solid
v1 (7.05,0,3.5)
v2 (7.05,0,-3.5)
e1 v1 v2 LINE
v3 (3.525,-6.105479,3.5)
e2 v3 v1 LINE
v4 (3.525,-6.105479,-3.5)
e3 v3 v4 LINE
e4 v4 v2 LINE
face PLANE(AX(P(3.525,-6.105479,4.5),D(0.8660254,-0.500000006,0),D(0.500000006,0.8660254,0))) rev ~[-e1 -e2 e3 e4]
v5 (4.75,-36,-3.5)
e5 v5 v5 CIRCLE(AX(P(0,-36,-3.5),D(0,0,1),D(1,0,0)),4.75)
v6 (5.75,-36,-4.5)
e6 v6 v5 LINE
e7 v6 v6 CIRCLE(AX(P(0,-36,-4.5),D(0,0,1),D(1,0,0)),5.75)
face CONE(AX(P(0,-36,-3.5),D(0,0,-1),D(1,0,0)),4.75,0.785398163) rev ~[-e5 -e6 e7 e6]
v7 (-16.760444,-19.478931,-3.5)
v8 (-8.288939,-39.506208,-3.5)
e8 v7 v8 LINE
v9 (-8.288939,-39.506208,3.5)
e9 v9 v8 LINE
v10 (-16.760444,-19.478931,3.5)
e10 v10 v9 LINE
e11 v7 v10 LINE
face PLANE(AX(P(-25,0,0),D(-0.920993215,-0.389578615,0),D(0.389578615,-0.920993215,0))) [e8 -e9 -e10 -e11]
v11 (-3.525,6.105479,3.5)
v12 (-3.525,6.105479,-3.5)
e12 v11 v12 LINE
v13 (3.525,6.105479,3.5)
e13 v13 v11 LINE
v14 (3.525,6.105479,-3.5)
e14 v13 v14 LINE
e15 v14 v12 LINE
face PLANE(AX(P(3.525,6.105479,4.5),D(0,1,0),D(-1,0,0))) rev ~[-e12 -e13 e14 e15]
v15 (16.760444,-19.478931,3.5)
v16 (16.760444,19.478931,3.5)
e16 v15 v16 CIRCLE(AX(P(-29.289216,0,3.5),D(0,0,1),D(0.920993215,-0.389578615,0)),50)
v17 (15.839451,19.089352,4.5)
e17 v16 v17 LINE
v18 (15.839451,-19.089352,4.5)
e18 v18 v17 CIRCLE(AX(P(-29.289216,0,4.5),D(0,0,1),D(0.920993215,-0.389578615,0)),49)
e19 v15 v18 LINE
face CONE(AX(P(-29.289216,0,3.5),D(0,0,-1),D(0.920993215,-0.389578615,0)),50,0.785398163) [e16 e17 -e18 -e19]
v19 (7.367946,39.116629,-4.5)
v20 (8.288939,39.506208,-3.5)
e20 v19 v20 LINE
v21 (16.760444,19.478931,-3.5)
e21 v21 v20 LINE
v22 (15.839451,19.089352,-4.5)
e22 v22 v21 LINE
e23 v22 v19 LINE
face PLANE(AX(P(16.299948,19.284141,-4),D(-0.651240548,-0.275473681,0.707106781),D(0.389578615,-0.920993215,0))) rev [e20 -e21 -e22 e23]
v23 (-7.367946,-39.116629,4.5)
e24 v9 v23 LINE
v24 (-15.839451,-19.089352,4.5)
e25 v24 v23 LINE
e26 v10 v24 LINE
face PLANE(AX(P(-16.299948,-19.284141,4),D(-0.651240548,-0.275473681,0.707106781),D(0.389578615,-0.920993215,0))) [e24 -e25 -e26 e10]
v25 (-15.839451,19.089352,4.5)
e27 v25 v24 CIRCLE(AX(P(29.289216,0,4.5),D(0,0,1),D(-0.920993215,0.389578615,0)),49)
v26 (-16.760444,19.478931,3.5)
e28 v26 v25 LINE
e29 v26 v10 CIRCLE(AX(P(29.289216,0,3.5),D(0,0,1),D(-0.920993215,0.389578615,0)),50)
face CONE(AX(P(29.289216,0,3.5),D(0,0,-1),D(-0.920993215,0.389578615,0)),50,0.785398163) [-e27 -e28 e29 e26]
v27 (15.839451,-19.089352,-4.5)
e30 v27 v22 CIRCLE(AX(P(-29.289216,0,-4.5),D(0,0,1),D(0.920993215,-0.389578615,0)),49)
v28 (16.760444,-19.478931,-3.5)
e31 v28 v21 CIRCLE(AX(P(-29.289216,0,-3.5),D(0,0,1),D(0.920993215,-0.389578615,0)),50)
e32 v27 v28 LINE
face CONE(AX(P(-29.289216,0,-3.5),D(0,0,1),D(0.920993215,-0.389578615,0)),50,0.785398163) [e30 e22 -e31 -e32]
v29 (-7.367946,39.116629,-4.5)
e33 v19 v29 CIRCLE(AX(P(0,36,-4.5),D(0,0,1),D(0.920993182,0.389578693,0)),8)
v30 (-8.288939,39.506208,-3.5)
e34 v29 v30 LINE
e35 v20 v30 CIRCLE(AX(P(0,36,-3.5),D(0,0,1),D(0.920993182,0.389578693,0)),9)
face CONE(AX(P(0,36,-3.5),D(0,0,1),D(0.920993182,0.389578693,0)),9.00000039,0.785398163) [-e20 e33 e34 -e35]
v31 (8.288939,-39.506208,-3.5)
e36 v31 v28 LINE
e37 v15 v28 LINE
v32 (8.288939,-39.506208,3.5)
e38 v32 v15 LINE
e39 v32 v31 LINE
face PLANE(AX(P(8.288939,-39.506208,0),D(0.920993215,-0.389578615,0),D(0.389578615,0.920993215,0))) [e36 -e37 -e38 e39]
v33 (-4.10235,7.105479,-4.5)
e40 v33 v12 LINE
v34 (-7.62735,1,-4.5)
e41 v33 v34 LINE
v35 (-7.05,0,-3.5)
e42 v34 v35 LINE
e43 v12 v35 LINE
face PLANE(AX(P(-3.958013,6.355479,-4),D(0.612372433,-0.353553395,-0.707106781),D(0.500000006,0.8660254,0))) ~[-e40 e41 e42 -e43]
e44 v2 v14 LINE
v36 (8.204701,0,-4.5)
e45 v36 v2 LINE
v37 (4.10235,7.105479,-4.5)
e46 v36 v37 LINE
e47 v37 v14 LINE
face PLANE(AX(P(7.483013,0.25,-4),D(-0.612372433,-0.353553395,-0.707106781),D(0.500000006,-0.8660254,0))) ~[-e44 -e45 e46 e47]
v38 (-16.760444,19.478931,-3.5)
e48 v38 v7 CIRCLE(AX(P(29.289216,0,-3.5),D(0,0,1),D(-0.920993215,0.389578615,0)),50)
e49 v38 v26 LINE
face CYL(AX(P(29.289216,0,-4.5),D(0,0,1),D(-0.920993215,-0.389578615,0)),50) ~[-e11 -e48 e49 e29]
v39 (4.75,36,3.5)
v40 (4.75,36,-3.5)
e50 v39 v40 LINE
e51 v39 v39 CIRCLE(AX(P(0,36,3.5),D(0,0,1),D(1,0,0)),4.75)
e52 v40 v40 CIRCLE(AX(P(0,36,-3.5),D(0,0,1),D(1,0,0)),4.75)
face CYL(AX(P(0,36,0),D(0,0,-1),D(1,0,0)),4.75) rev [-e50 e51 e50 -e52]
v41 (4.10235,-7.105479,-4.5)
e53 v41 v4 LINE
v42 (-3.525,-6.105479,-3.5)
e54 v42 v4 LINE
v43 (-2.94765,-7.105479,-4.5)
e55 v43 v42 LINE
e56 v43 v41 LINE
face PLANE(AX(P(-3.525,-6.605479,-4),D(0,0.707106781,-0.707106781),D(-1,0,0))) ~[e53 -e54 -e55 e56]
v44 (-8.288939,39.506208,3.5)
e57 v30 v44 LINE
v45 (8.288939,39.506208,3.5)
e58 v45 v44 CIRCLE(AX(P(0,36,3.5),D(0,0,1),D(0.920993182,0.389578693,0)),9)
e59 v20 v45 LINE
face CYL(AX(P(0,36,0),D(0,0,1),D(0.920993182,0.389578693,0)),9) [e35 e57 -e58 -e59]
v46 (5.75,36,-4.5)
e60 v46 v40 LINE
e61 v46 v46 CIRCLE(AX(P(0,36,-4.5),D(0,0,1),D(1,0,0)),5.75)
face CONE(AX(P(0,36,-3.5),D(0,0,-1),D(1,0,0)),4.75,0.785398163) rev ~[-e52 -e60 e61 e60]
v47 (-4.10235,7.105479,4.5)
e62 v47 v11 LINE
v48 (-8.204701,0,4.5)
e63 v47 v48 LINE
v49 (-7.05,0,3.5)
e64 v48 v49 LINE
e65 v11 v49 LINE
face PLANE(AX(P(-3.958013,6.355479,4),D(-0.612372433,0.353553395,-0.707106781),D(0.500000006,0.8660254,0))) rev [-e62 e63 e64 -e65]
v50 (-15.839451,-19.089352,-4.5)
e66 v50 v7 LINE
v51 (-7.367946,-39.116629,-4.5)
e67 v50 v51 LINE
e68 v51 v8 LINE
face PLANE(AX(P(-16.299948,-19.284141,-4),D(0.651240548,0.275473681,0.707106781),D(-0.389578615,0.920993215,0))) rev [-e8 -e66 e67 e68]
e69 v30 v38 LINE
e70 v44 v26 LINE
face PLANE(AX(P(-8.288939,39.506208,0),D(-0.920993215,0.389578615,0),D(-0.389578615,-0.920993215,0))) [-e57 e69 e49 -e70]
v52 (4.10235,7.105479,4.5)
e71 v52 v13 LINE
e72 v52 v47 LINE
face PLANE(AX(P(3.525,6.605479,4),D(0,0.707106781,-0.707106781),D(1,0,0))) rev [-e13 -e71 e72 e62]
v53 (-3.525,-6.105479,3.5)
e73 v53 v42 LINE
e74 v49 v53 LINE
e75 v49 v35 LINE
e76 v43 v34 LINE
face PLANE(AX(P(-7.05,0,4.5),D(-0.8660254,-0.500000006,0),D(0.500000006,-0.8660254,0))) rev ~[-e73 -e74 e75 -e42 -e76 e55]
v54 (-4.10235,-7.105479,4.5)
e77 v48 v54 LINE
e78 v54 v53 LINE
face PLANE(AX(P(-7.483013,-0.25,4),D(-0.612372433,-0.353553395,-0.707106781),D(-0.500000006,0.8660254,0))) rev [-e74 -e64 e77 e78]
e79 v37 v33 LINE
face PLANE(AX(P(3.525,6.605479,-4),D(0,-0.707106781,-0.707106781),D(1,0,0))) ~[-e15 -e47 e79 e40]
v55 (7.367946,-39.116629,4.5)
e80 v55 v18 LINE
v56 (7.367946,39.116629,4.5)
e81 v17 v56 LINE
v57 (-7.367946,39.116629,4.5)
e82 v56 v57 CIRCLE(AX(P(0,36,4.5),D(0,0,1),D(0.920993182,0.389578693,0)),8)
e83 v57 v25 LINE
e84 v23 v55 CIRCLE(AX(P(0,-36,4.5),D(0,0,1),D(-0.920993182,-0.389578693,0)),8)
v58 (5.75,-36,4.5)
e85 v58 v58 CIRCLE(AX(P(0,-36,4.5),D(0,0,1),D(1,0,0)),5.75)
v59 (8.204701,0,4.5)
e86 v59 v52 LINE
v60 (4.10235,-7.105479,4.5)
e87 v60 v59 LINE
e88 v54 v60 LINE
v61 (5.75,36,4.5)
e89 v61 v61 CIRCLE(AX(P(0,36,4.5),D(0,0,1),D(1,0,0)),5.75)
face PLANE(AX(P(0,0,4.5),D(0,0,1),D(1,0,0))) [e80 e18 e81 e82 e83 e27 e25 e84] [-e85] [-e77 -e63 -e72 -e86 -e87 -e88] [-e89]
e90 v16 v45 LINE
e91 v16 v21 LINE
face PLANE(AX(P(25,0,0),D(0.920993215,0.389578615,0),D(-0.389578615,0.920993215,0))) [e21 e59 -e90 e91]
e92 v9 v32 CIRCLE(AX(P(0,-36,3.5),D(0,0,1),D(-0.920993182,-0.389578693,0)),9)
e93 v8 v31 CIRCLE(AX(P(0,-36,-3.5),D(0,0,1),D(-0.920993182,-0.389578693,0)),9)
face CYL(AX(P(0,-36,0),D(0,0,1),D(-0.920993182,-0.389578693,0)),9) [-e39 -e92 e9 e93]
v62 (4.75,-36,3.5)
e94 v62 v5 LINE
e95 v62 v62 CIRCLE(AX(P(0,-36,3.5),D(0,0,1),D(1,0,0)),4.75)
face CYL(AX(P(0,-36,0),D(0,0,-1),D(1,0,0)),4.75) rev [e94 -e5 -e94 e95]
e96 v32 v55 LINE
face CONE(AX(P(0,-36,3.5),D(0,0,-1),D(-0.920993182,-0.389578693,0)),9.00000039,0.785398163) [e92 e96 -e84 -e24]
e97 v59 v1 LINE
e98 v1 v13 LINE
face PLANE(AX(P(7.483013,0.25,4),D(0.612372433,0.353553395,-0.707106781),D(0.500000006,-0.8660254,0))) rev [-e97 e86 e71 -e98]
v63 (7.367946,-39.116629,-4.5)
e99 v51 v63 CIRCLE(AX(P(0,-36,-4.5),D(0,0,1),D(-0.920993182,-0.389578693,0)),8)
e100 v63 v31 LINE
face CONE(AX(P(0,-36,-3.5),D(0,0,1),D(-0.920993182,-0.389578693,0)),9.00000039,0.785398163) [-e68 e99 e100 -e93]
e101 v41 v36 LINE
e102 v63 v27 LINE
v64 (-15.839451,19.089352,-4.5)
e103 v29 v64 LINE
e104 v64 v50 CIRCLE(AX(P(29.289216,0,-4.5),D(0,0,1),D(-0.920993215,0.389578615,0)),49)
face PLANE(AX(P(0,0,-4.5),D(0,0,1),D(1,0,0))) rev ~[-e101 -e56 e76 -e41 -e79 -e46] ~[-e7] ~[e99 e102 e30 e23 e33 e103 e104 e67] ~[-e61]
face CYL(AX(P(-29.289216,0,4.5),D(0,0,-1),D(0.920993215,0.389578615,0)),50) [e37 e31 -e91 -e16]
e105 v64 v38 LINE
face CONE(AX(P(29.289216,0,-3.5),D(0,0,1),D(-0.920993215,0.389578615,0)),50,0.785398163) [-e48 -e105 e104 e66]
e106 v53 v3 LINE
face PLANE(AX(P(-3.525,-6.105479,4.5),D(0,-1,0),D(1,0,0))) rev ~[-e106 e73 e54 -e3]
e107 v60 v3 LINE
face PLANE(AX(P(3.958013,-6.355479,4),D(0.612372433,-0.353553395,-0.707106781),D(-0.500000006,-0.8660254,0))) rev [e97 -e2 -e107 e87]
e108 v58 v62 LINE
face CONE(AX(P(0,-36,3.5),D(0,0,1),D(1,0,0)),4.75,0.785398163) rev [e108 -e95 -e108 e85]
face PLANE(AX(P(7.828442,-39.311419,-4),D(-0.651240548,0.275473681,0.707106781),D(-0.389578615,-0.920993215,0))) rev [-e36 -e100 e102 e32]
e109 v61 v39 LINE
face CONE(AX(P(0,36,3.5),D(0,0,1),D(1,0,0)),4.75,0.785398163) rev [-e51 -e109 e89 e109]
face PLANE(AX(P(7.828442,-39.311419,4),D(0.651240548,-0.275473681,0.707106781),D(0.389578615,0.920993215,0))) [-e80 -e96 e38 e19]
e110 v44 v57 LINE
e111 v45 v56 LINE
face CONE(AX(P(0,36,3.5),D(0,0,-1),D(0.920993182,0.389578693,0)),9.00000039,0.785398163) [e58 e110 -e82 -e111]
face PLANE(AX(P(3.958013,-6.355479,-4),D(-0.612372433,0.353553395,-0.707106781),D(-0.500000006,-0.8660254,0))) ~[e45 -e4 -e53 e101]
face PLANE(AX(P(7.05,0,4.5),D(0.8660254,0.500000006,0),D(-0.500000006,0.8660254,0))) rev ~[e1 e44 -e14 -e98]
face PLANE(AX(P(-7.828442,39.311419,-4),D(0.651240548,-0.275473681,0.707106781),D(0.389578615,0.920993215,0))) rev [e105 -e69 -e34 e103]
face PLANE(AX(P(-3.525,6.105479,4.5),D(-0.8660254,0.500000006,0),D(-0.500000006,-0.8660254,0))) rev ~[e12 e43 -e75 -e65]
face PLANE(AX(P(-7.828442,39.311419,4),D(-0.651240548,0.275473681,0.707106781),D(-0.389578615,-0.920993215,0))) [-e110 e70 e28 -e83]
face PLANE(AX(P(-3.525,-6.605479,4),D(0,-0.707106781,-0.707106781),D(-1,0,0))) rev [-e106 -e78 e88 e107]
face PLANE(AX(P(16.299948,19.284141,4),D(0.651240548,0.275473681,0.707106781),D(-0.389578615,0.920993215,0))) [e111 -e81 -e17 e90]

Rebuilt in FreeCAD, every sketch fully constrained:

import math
import FreeCAD as App
import Part
import Sketcher
from FreeCAD import Vector
Q = App.Units.Quantity


def edges_at(feature, points):
    """Names of the edges that pass closest to the given points."""
    edges = feature.Shape.Edges
    near = lambda p: min(range(len(edges)), key=lambda i: edges[i].distToShape(Part.Vertex(*p))[0])
    return sorted({f"Edge{near(p) + 1}" for p in points})

doc = App.newDocument("Part")
params = doc.addObject("Spreadsheet::Sheet", "Params")
for row, (alias, value) in enumerate([
    ("sketch1_radius", "9 mm"),
    ("sketch1_diameter", "9.5 mm"),
    ("pad1_length", "9 mm"),
    ("fillet_radius", "50 mm"),
    ("chamfer_size", "1 mm"),
    ("sketch2_width", "7.05 mm"),
    ("pocket1_length", "25 mm"),
    ("chamfer2_size", "1 mm"),
], start=1):
    params.set(f"A{row}", alias)
    params.set(f"B{row}", "=" + value)
    params.setAlias(f"B{row}", alias)

body = doc.addObject("PartDesign::Body", "Body")

# Sketch on XY plane
sketch1 = doc.addObject("Sketcher::SketchObject", "Sketch")
body.addObject(sketch1)
sketch1.AttachmentSupport = (doc.XY_Plane, [""])
sketch1.MapMode = "FlatFace"
sketch1.addGeometry([
    Part.LineSegment(Vector(25, 0, 0), Vector(8.288939, 39.506208, 0)),  # 0
    Part.ArcOfCircle(Part.Circle(Vector(0, 36, 0), Vector(0, 0, 1), 9), math.radians(22.928287), math.radians(157.071713)),  # 1
    Part.LineSegment(Vector(-8.288939, 39.506208, 0), Vector(-25, 0, 0)),  # 2
    Part.LineSegment(Vector(-25, 0, 0), Vector(-8.288939, -39.506208, 0)),  # 3
    Part.ArcOfCircle(Part.Circle(Vector(0, -36, 0), Vector(0, 0, 1), 9), math.radians(-157.071713), math.radians(-22.928287)),  # 4
    Part.LineSegment(Vector(8.288939, -39.506208, 0), Vector(25, 0, 0)),  # 5
    Part.Circle(Vector(0, -36, 0), Vector(0, 0, 1), 4.75),  # 6
    Part.Circle(Vector(0, 36, 0), Vector(0, 0, 1), 4.75),  # 7
], False)
sketch1.addConstraint([
    Sketcher.Constraint("Tangent", 0, 2, 1, 1),
    Sketcher.Constraint("Tangent", 1, 2, 2, 1),
    Sketcher.Constraint("Coincident", 2, 2, 3, 1),
    Sketcher.Constraint("Tangent", 3, 2, 4, 1),
    Sketcher.Constraint("Tangent", 4, 2, 5, 1),
    Sketcher.Constraint("Coincident", 5, 2, 0, 1),
    Sketcher.Constraint("Coincident", 6, 3, 4, 3),
    Sketcher.Constraint("Coincident", 7, 3, 1, 3),
    Sketcher.Constraint("Equal", 1, 4),
    Sketcher.Constraint("Equal", 6, 7),
    Sketcher.Constraint("Symmetric", 1, 3, 4, 3, -1, 1),
    Sketcher.Constraint("Symmetric", 2, 2, 5, 2, -1, 1),
    Sketcher.Constraint("Symmetric", 0, 2, 1, 2, -2),
    Sketcher.Constraint("Radius", 1, 9.0),
    Sketcher.Constraint("Diameter", 6, 9.5),
    Sketcher.Constraint("DistanceY", -1, 1, 1, 3, 36.0),
    Sketcher.Constraint("DistanceX", 2, 2, -1, 1, 25.0),
])
sketch1.setExpression("Constraints[13]", "Params.sketch1_radius")
sketch1.setExpression("Constraints[14]", "Params.sketch1_diameter")
pad1 = doc.addObject("PartDesign::Pad", "Pad")
body.addObject(pad1)
pad1.Profile = sketch1
pad1.setExpression("Length", "Params.pad1_length")
pad1.Midplane = True
doc.recompute()

fillet = doc.addObject("PartDesign::Fillet", "Fillet")
body.addObject(fillet)
fillet.Base = (pad1, edges_at(pad1, [(-25, 0, 0), (25, 0, 0)]))
fillet.setExpression("Radius", "Params.fillet_radius")
doc.recompute()

chamfer = doc.addObject("PartDesign::Chamfer", "Chamfer")
body.addObject(chamfer)
chamfer.Base = (fillet, edges_at(fillet, [
    (0, 45, 4.5),
    (0, 45, -4.5),
    (-12.525, -29.493, 4.5),
    (-12.525, -29.493, -4.5),
]))
chamfer.setExpression("Size", "Params.chamfer_size")

# Sketch on XY plane
sketch2 = doc.addObject("Sketcher::SketchObject", "Sketch001")
body.addObject(sketch2)
sketch2.AttachmentSupport = (doc.XY_Plane, [""])
sketch2.MapMode = "FlatFace"
sketch2.AttachmentOffset = App.Placement(Vector(0, 0, 4.5), App.Rotation())
sketch2.addGeometry([
    Part.LineSegment(Vector(-3.525, 6.105479, 0), Vector(-7.05, 0, 0)),  # 0
    Part.LineSegment(Vector(-7.05, 0, 0), Vector(-3.525, -6.105479, 0)),  # 1
    Part.LineSegment(Vector(-3.525, -6.105479, 0), Vector(3.525, -6.105479, 0)),  # 2
    Part.LineSegment(Vector(3.525, -6.105479, 0), Vector(7.05, 0, 0)),  # 3
    Part.LineSegment(Vector(7.05, 0, 0), Vector(3.525, 6.105479, 0)),  # 4
    Part.LineSegment(Vector(3.525, 6.105479, 0), Vector(-3.525, 6.105479, 0)),  # 5
], False)
sketch2.addConstraint([
    Sketcher.Constraint("Coincident", 0, 2, 1, 1),
    Sketcher.Constraint("Coincident", 1, 2, 2, 1),
    Sketcher.Constraint("Coincident", 2, 2, 3, 1),
    Sketcher.Constraint("Coincident", 3, 2, 4, 1),
    Sketcher.Constraint("Coincident", 4, 2, 5, 1),
    Sketcher.Constraint("Coincident", 5, 2, 0, 1),
    Sketcher.Constraint("Horizontal", 2),
    Sketcher.Constraint("Horizontal", 5),
    Sketcher.Constraint("Symmetric", 0, 2, 3, 2, -1, 1),
    Sketcher.Constraint("Symmetric", 1, 2, 4, 2, -1, 1),
    Sketcher.Constraint("PointOnObject", 0, 2, -1),
    Sketcher.Constraint("Parallel", 0, 3),
    Sketcher.Constraint("Vertical", 2, 2, 4, 2),
    Sketcher.Constraint("Angle", 0, Q("-120 deg")),
    Sketcher.Constraint("DistanceX", 2, 1, 2, 2, 7.05),
    Sketcher.Constraint("DistanceX", 0, 2, 3, 2, 14.1),
])
sketch2.setExpression("Constraints[14]", "Params.sketch2_width")
pocket1 = doc.addObject("PartDesign::Pocket", "Pocket")
body.addObject(pocket1)
pocket1.Profile = sketch2
pocket1.setExpression("Length", "Params.pocket1_length")
doc.recompute()

chamfer2 = doc.addObject("PartDesign::Chamfer", "Chamfer001")
body.addObject(chamfer2)
chamfer2.Base = (pocket1, edges_at(pocket1, [
    (-4.75, 36, 4.5),
    (-4.75, 36, -4.5),
    (-4.75, -36, 4.5),
    (-4.75, -36, -4.5),
    (0, -6.105, 4.5),
    (-5.287, -3.053, 4.5),
    (-5.287, 3.053, 4.5),
    (0, 6.105, 4.5),
    (5.287, 3.053, 4.5),
    (5.287, -3.053, 4.5),
    (0, -6.105, -4.5),
    (5.287, -3.053, -4.5),
    (5.287, 3.053, -4.5),
    (0, 6.105, -4.5),
    (-5.287, 3.053, -4.5),
]))
chamfer2.setExpression("Size", "Params.chamfer2_size")

doc.recompute()
